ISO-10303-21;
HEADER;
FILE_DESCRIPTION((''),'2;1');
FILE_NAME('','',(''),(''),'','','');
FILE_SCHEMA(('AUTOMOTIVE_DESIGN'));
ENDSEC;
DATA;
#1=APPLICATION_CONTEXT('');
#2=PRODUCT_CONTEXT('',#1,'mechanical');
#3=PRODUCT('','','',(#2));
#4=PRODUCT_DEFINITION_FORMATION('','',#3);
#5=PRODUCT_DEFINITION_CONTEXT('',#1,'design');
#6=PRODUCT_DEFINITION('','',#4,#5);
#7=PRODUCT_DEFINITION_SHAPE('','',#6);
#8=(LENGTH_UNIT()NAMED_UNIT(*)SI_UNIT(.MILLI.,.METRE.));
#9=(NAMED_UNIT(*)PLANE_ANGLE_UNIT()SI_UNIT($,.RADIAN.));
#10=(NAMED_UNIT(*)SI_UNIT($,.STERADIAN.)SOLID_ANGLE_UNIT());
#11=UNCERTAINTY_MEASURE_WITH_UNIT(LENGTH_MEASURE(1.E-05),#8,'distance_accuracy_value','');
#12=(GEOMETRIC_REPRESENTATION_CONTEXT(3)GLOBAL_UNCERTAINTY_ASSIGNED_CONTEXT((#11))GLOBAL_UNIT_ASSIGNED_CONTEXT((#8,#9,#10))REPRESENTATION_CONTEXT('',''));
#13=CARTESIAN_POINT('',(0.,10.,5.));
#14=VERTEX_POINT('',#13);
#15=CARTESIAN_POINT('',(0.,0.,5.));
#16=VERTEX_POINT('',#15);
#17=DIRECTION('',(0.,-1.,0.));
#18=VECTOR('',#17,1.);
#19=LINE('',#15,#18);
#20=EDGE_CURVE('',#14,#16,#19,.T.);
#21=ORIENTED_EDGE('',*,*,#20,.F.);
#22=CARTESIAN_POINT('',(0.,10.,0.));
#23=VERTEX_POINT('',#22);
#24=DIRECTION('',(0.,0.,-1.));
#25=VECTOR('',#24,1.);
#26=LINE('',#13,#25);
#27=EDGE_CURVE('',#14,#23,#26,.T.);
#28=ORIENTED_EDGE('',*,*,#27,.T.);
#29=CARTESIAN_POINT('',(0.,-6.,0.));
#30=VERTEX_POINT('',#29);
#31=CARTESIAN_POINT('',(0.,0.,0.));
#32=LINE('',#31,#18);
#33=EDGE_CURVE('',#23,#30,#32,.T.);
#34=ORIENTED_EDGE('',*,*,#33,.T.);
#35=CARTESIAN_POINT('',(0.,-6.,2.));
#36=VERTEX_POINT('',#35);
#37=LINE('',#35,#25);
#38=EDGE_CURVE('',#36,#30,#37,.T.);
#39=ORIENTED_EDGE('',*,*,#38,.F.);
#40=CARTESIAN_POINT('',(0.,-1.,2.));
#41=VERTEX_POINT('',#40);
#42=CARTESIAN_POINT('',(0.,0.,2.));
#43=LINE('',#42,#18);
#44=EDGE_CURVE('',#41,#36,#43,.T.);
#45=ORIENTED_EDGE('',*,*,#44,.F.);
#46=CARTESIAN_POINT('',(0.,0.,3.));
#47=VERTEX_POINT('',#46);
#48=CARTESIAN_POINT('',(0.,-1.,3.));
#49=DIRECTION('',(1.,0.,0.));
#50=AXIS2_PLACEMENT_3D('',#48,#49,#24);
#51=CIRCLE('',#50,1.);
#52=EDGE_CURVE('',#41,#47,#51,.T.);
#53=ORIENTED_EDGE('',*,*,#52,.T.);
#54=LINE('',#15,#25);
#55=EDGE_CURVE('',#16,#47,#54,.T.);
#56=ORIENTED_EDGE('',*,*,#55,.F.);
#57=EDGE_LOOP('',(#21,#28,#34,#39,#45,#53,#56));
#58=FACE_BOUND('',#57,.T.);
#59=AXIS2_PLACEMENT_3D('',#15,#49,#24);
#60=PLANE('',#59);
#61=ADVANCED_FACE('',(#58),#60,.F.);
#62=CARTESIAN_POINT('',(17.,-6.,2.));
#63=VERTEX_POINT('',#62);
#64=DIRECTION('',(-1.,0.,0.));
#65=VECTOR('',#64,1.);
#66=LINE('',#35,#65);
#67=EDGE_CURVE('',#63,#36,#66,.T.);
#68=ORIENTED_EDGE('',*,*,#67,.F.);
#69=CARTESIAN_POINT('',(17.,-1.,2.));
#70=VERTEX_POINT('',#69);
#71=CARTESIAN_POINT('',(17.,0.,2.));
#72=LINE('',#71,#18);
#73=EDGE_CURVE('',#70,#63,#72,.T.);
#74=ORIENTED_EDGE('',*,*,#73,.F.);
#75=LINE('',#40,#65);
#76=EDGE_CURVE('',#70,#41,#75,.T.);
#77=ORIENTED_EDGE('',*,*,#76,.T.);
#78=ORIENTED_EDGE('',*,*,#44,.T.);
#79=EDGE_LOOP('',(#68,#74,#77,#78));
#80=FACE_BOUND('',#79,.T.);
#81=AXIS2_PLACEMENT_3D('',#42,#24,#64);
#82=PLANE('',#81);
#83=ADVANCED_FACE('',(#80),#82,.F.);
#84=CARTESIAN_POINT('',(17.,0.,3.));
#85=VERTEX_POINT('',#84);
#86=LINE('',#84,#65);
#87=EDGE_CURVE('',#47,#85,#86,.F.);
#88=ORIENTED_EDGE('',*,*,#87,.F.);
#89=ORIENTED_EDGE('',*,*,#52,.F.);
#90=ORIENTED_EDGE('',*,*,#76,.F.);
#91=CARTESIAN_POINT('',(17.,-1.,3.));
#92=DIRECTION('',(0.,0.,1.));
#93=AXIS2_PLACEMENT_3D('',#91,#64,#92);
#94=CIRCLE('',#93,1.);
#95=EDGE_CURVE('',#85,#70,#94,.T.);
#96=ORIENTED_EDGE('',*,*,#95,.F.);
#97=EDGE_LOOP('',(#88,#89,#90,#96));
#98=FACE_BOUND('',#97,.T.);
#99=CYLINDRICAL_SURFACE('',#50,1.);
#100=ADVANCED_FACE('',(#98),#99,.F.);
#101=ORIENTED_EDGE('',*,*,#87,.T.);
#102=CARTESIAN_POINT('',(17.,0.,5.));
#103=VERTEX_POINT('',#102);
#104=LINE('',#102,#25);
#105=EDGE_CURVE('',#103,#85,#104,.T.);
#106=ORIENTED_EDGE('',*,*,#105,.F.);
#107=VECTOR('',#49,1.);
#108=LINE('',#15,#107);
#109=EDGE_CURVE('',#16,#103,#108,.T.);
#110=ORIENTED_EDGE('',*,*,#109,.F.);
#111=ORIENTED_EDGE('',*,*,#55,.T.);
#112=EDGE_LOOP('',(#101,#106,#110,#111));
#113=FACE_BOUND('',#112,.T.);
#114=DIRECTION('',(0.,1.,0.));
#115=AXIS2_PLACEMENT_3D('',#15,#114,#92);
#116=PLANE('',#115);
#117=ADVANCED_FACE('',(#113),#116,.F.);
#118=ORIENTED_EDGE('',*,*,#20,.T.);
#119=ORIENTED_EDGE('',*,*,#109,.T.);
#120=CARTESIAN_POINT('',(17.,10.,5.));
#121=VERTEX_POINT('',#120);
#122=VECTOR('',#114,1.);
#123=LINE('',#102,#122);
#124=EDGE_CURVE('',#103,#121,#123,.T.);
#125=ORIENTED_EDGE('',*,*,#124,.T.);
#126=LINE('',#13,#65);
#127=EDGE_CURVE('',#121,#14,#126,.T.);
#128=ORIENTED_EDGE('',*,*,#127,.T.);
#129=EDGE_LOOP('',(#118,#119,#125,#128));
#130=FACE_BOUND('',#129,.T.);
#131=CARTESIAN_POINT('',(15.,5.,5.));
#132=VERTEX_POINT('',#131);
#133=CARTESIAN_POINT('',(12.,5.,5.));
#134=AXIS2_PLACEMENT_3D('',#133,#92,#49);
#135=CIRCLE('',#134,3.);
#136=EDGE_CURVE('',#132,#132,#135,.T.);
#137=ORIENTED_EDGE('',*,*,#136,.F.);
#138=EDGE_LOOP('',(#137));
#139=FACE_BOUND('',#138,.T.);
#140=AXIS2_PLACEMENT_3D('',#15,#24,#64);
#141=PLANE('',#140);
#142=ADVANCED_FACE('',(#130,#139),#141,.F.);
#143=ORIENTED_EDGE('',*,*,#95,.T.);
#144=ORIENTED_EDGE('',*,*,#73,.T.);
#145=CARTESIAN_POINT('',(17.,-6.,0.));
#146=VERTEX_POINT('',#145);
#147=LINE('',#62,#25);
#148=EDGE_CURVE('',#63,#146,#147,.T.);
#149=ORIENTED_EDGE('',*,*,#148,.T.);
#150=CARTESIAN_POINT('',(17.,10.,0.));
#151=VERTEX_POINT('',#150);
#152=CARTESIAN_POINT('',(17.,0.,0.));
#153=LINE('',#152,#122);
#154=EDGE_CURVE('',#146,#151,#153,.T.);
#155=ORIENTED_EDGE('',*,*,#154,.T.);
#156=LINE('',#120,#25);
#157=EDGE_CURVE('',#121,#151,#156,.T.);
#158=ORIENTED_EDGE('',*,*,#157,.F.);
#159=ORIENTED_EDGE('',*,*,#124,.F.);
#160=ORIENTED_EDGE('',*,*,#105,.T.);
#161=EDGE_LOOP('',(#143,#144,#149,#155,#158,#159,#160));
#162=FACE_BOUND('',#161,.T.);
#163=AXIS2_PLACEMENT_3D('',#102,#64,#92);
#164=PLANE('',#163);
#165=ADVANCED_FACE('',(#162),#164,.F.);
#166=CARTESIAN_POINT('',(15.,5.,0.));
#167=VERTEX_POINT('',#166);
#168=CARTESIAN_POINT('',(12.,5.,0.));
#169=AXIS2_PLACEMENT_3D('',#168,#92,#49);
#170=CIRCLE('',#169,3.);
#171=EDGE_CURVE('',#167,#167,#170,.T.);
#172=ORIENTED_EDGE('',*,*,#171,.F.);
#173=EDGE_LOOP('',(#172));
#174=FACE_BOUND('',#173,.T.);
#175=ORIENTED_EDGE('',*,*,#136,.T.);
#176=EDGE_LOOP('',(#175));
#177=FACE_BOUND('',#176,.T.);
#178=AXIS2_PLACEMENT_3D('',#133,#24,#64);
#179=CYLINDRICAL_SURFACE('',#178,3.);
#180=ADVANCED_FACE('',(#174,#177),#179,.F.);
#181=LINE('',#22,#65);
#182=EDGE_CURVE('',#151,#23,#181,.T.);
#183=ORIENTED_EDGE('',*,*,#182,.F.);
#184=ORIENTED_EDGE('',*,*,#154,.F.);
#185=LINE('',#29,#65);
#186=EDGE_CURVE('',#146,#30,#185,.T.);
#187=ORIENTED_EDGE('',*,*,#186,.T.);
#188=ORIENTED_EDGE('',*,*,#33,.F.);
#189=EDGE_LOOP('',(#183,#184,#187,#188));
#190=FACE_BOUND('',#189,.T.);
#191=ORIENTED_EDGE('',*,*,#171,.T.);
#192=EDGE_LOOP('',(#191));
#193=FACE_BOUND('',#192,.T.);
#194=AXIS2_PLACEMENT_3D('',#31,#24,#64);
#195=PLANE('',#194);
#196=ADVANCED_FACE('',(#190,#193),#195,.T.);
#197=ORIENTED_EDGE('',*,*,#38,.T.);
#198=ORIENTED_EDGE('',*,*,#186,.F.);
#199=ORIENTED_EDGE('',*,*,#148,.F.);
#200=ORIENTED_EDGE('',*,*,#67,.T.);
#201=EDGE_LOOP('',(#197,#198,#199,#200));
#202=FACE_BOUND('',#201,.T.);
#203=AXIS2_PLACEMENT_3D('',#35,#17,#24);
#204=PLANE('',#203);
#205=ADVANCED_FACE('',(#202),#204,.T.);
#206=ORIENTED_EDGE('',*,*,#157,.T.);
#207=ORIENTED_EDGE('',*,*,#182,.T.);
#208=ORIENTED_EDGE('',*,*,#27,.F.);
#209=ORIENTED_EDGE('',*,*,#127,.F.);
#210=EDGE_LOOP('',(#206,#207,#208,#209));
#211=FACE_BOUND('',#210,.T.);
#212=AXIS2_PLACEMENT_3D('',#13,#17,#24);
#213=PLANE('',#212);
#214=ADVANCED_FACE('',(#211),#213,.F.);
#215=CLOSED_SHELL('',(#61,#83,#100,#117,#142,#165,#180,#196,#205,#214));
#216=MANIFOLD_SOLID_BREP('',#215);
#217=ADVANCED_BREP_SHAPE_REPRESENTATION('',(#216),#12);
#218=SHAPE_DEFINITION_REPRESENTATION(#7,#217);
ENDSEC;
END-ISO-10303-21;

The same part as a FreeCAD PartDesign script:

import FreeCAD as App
import Part
import Sketcher
Q = App.Units.Quantity


def edges_at(feature, points):
    """Names of the edges that pass closest to the given points."""
    edges = feature.Shape.Edges
    near = lambda p: min(range(len(edges)), key=lambda i: edges[i].distToShape(Part.Vertex(*p))[0])
    return sorted({f"Edge{near(p) + 1}" for p in points})

doc = App.newDocument("Part")
body = doc.addObject("PartDesign::Body", "Body")

# Sketch on XY plane
sketch1 = body.newObject("Sketcher::SketchObject", "Sketch")
sketch1.AttachmentSupport = (doc.getObject("XY_Plane"), [""])
sketch1.MapMode = "FlatFace"
sketch1.addGeometry([
    Part.LineSegment(App.Vector(0, 10, 0), App.Vector(0, 0, 0)),  # 0
    Part.LineSegment(App.Vector(0, 0, 0), App.Vector(17, 0, 0)),  # 1
    Part.LineSegment(App.Vector(17, 0, 0), App.Vector(17, 10, 0)),  # 2
    Part.LineSegment(App.Vector(17, 10, 0), App.Vector(0, 10, 0)),  # 3
    Part.Circle(App.Vector(12, 5, 0), App.Vector(0, 0, 1), 3),  # 4
], False)
sketch1.addConstraint([
    Sketcher.Constraint("Coincident", 0, 2, 1, 1),
    Sketcher.Constraint("Coincident", 1, 2, 2, 1),
    Sketcher.Constraint("Coincident", 2, 2, 3, 1),
    Sketcher.Constraint("Coincident", 3, 2, 0, 1),
    Sketcher.Constraint("Vertical", 0),
    Sketcher.Constraint("Horizontal", 1),
    Sketcher.Constraint("Vertical", 2),
    Sketcher.Constraint("Horizontal", 3),
    Sketcher.Constraint("Coincident", 0, 2, -1, 1),
    Sketcher.Constraint("Diameter", 4, Q("6 mm")),
    Sketcher.Constraint("DistanceX", 1, 1, 1, 2, Q("17 mm")),
    Sketcher.Constraint("DistanceY", 0, 2, 0, 1, Q("10 mm")),
    Sketcher.Constraint("DistanceX", -1, 1, 4, 3, Q("12 mm")),
    Sketcher.Constraint("DistanceY", -1, 1, 4, 3, Q("5 mm")),
])
pad1 = body.newObject("PartDesign::Pad", "Pad")
pad1.Profile = sketch1
pad1.Length = 5

# Sketch on XY plane
sketch2 = body.newObject("Sketcher::SketchObject", "Sketch001")
sketch2.AttachmentSupport = (doc.getObject("XY_Plane"), [""])
sketch2.MapMode = "FlatFace"
sketch2.addGeometry([
    Part.LineSegment(App.Vector(17, 0, 0), App.Vector(17, -6, 0)),
    Part.LineSegment(App.Vector(17, -6, 0), App.Vector(0, -6, 0)),
    Part.LineSegment(App.Vector(0, -6, 0), App.Vector(0, 0, 0)),
    Part.LineSegment(App.Vector(0, 0, 0), App.Vector(17, 0, 0)),
], False)
sketch2.addConstraint([
    Sketcher.Constraint("Coincident", 0, 2, 1, 1),
    Sketcher.Constraint("Coincident", 1, 2, 2, 1),
    Sketcher.Constraint("Coincident", 2, 2, 3, 1),
    Sketcher.Constraint("Coincident", 3, 2, 0, 1),
    Sketcher.Constraint("Vertical", 0),
    Sketcher.Constraint("Horizontal", 1),
    Sketcher.Constraint("Vertical", 2),
    Sketcher.Constraint("Horizontal", 3),
    Sketcher.Constraint("Coincident", 2, 2, -1, 1),
    Sketcher.Constraint("DistanceX", 1, 2, 1, 1, Q("17 mm")),
    Sketcher.Constraint("DistanceY", 0, 2, 0, 1, Q("6 mm")),
])
pad2 = body.newObject("PartDesign::Pad", "Pad001")
pad2.Profile = sketch2
pad2.Length = 2
doc.recompute()

fillet = body.newObject("PartDesign::Fillet", "Fillet")
fillet.Base = (pad2, edges_at(pad2, [(8.5, 0, 2)]))
fillet.Radius = 1

doc.recompute()
